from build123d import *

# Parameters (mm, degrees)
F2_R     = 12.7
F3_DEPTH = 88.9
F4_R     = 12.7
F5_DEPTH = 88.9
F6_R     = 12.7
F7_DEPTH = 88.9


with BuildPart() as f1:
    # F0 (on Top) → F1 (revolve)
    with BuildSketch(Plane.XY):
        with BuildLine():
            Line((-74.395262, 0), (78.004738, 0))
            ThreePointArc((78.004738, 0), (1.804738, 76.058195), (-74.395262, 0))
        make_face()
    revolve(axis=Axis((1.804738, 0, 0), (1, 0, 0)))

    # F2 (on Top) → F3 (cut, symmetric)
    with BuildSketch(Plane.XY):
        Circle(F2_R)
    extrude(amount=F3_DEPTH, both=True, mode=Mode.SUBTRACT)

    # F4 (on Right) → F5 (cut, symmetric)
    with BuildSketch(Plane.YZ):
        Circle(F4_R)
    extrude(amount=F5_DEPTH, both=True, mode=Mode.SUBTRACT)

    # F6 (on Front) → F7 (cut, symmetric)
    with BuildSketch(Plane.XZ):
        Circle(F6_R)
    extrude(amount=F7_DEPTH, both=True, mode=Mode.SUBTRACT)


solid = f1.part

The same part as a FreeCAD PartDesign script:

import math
import FreeCAD as App
import Part
import Sketcher
Q = App.Units.Quantity

doc = App.newDocument("Part")
body = doc.addObject("PartDesign::Body", "Body")

sketch1 = body.newObject("Sketcher::SketchObject", "Sketch")
sketch1.AttachmentSupport = (doc.getObject("XY_Plane"), [""])
sketch1.MapMode = "FlatFace"
sketch1.addGeometry(Part.LineSegment(App.Vector(-74.395262, 0, 0), App.Vector(78.004738, 0, 0)), False)
sketch1.addGeometry(Part.ArcOfCircle(Part.Circle(App.Vector(1.804738, -0.141937, 0), App.Vector(0, 0, 1), 76.200132), math.radians(0.106724), math.radians(179.893276)), False)
sketch1.addConstraint(Sketcher.Constraint("Coincident", 0, 1, 1, 2))
sketch1.addConstraint(Sketcher.Constraint("Coincident", 1, 1, 0, 2))
sketch1.addConstraint(Sketcher.Constraint("Horizontal", 0))
sketch1.addConstraint(Sketcher.Constraint("PointOnObject", 0, 1, -1))
sketch1.addConstraint(Sketcher.Constraint("DistanceX", 0, 1, 0, 2, Q("6 in")))
sketch1.addConstraint(Sketcher.Constraint("DistanceX", -1, 1, 1, 1, Q("78.004738 mm")))
sketch1.addConstraint(Sketcher.Constraint("DistanceY", 1, 3, -1, 1, Q("0.141937 mm")))
revolution = body.newObject("PartDesign::Revolution", "Revolution")
revolution.Profile = sketch1
revolution.ReferenceAxis = (sketch1, ["H_Axis"])
revolution.Angle = 360

sketch2 = body.newObject("Sketcher::SketchObject", "Sketch001")
sketch2.AttachmentSupport = (doc.getObject("XY_Plane"), [""])
sketch2.MapMode = "FlatFace"
sketch2.addGeometry(Part.Circle(App.Vector(0, 0, 0), App.Vector(0, 0, 1), 12.7), False)
sketch2.addConstraint(Sketcher.Constraint("Coincident", 0, 3, -1, 1))
sketch2.addConstraint(Sketcher.Constraint("Diameter", 0, Q("1 in")))
pocket1 = body.newObject("PartDesign::Pocket", "Pocket")
pocket1.Profile = sketch2
pocket1.Length = Q("7 in")
pocket1.Midplane = True

sketch3 = body.newObject("Sketcher::SketchObject", "Sketch002")
sketch3.AttachmentSupport = (doc.getObject("YZ_Plane"), [""])
sketch3.MapMode = "FlatFace"
sketch3.addGeometry(Part.Circle(App.Vector(0, 0, 0), App.Vector(0, 0, 1), 12.7), False)
sketch3.addConstraint(Sketcher.Constraint("Coincident", 0, 3, -1, 1))
sketch3.addConstraint(Sketcher.Constraint("Diameter", 0, Q("1 in")))
pocket2 = body.newObject("PartDesign::Pocket", "Pocket001")
pocket2.Profile = sketch3
pocket2.Length = Q("7 in")
pocket2.Midplane = True

sketch4 = body.newObject("Sketcher::SketchObject", "Sketch003")
sketch4.AttachmentSupport = (doc.getObject("XZ_Plane"), [""])
sketch4.MapMode = "FlatFace"
sketch4.addGeometry(Part.Circle(App.Vector(0, 0, 0), App.Vector(0, 0, 1), 12.7), False)
sketch4.addConstraint(Sketcher.Constraint("Coincident", 0, 3, -1, 1))
sketch4.addConstraint(Sketcher.Constraint("Diameter", 0, Q("1 in")))
pocket3 = body.newObject("PartDesign::Pocket", "Pocket002")
pocket3.Profile = sketch4
pocket3.Length = Q("7 in")
pocket3.Midplane = True

doc.recompute()
